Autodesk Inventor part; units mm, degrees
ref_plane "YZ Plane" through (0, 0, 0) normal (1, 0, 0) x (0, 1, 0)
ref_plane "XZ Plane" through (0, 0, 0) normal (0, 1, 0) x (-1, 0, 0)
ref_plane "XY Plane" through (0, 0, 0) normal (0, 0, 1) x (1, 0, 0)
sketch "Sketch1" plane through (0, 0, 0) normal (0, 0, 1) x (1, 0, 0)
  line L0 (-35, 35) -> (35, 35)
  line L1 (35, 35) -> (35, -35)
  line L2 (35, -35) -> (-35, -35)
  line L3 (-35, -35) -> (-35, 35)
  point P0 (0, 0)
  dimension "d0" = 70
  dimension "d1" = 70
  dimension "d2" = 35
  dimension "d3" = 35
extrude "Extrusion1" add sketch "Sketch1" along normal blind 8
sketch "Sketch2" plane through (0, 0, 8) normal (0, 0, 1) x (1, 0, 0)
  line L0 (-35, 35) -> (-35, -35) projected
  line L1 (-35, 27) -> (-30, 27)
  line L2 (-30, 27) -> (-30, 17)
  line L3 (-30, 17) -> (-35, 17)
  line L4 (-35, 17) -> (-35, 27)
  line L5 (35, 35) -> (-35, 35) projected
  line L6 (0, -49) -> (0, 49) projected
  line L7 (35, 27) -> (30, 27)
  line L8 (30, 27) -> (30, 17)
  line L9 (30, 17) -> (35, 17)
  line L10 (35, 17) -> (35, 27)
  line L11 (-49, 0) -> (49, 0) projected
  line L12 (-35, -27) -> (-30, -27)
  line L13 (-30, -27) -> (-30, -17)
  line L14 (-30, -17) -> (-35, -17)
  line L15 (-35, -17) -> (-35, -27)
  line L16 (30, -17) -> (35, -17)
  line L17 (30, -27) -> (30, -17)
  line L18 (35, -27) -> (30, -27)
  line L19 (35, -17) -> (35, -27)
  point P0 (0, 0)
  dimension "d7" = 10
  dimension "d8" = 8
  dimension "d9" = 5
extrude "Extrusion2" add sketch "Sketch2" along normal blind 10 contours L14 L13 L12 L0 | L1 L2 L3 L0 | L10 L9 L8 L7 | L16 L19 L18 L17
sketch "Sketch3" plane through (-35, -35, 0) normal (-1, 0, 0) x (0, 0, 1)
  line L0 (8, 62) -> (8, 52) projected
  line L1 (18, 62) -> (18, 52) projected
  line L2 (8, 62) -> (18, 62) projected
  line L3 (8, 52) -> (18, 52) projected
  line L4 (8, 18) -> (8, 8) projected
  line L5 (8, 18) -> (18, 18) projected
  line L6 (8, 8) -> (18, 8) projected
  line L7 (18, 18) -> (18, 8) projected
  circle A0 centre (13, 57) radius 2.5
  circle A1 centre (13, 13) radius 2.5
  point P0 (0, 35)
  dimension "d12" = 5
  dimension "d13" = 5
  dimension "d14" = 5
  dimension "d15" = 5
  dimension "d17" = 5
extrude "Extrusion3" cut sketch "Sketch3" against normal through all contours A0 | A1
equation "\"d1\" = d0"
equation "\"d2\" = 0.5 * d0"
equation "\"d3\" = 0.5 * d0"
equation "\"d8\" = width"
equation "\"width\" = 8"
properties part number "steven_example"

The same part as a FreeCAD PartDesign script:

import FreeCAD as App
import Part
import Sketcher


def add_polygon(sketch, points):
    """Adds a closed chain of lines whose ends are joined by coincident constraints."""
    first, n = sketch.GeometryCount, len(points)
    for a, b in zip(points, points[1:] + points[:1]):
        sketch.addGeometry(Part.LineSegment(App.Vector(*a, 0), App.Vector(*b, 0)), False)
    for i in range(n):
        sketch.addConstraint(Sketcher.Constraint("Coincident", first + i, 2, first + (i + 1) % n, 1))

doc = App.newDocument("Part")
params = doc.addObject("Spreadsheet::Sheet", "Params")
for row, (alias, value) in enumerate([
    ("sketch1_width", "70 mm"),
    ("pad1_length", "8 mm"),
    ("sketch2_width", "5 mm"),
    ("sketch2_height", "10 mm"),
    ("pad2_length", "10 mm"),
    ("sketch3_diameter", "5 mm"),
], start=1):
    params.set(f"A{row}", alias)
    params.set(f"B{row}", "=" + value)
    params.setAlias(f"B{row}", alias)

body = doc.addObject("PartDesign::Body", "Body")

# Sketch on XY plane
sketch1 = doc.addObject("Sketcher::SketchObject", "Sketch")
body.addObject(sketch1)
sketch1.AttachmentSupport = (doc.XY_Plane, [""])
sketch1.MapMode = "FlatFace"
add_polygon(sketch1, [(35, 35), (-35, 35), (-35, -35), (35, -35)])  # lines 0-3
sketch1.addConstraint(Sketcher.Constraint("Horizontal", 0))
sketch1.addConstraint(Sketcher.Constraint("Vertical", 1))
sketch1.addConstraint(Sketcher.Constraint("Horizontal", 2))
sketch1.addConstraint(Sketcher.Constraint("Vertical", 3))
sketch1.addConstraint(Sketcher.Constraint("Symmetric", 0, 2, 2, 2, -1, 1))
sketch1.addConstraint(Sketcher.Constraint("Equal", 2, 1))
sketch1.addConstraint(Sketcher.Constraint("DistanceX", 0, 2, 0, 1, 70.0))
sketch1.setExpression("Constraints[10]", "Params.sketch1_width")
pad1 = doc.addObject("PartDesign::Pad", "Pad")
body.addObject(pad1)
pad1.Profile = sketch1
pad1.setExpression("Length", "Params.pad1_length")

# Sketch on XY plane
sketch2 = doc.addObject("Sketcher::SketchObject", "Sketch001")
body.addObject(sketch2)
sketch2.AttachmentSupport = (doc.XY_Plane, [""])
sketch2.MapMode = "FlatFace"
sketch2.AttachmentOffset = App.Placement(App.Vector(0, 0, 8), App.Rotation())
add_polygon(sketch2, [(-30, -17), (-35, -17), (-35, -27), (-30, -27)])  # lines 0-3
add_polygon(sketch2, [(-30, 27), (-35, 27), (-35, 17), (-30, 17)])  # lines 4-7
add_polygon(sketch2, [(35, 17), (35, 27), (30, 27), (30, 17)])  # lines 8-11
add_polygon(sketch2, [(35, -17), (30, -17), (30, -27), (35, -27)])  # lines 12-15
sketch2.addConstraint(Sketcher.Constraint("Horizontal", 0))
sketch2.addConstraint(Sketcher.Constraint("Vertical", 1))
sketch2.addConstraint(Sketcher.Constraint("Horizontal", 2))
sketch2.addConstraint(Sketcher.Constraint("Vertical", 3))
sketch2.addConstraint(Sketcher.Constraint("Horizontal", 4))
sketch2.addConstraint(Sketcher.Constraint("Vertical", 5))
sketch2.addConstraint(Sketcher.Constraint("Horizontal", 6))
sketch2.addConstraint(Sketcher.Constraint("Vertical", 7))
sketch2.addConstraint(Sketcher.Constraint("Vertical", 8))
sketch2.addConstraint(Sketcher.Constraint("Horizontal", 9))
sketch2.addConstraint(Sketcher.Constraint("Vertical", 10))
sketch2.addConstraint(Sketcher.Constraint("Horizontal", 11))
sketch2.addConstraint(Sketcher.Constraint("Horizontal", 12))
sketch2.addConstraint(Sketcher.Constraint("Vertical", 13))
sketch2.addConstraint(Sketcher.Constraint("Horizontal", 14))
sketch2.addConstraint(Sketcher.Constraint("Vertical", 15))
sketch2.addConstraint(Sketcher.Constraint("Symmetric", 1, 2, 8, 2, -1, 1))
sketch2.addConstraint(Sketcher.Constraint("Symmetric", 3, 2, 10, 2, -1, 1))
sketch2.addConstraint(Sketcher.Constraint("Symmetric", 6, 2, 12, 2, -1, 1))
sketch2.addConstraint(Sketcher.Constraint("Symmetric", 4, 2, 14, 2, -1, 1))
sketch2.addConstraint(Sketcher.Constraint("Symmetric", 4, 2, 8, 2, -2))
sketch2.addConstraint(Sketcher.Constraint("Symmetric", 6, 2, 10, 2, -2))
sketch2.addConstraint(Sketcher.Constraint("DistanceX", 0, 2, 0, 1, 5.0))
sketch2.addConstraint(Sketcher.Constraint("DistanceY", 1, 2, 1, 1, 10.0))
sketch2.addConstraint(Sketcher.Constraint("DistanceX", 0, 2, -1, 1, 35.0))
sketch2.addConstraint(Sketcher.Constraint("DistanceY", 0, 2, -1, 1, 17.0))
sketch2.setExpression("Constraints[38]", "Params.sketch2_width")
sketch2.setExpression("Constraints[39]", "Params.sketch2_height")
pad2 = doc.addObject("PartDesign::Pad", "Pad001")
body.addObject(pad2)
pad2.Profile = sketch2
pad2.setExpression("Length", "Params.pad2_length")

# Sketch on YZ plane
sketch3 = doc.addObject("Sketcher::SketchObject", "Sketch002")
body.addObject(sketch3)
sketch3.AttachmentSupport = (doc.YZ_Plane, [""])
sketch3.MapMode = "FlatFace"
sketch3.AttachmentOffset = App.Placement(App.Vector(0, 0, -35), App.Rotation())
sketch3.addGeometry(Part.Circle(App.Vector(22, 13, 0), App.Vector(0, 0, 1), 2.5), False)
sketch3.addGeometry(Part.Circle(App.Vector(-22, 13, 0), App.Vector(0, 0, 1), 2.5), False)
sketch3.addConstraint(Sketcher.Constraint("Equal", 0, 1))
sketch3.addConstraint(Sketcher.Constraint("Symmetric", 0, 3, 1, 3, -2))
sketch3.addConstraint(Sketcher.Constraint("Diameter", 0, 5.0))
sketch3.addConstraint(Sketcher.Constraint("DistanceX", -1, 1, 0, 3, 22.0))
sketch3.addConstraint(Sketcher.Constraint("DistanceY", -1, 1, 0, 3, 13.0))
sketch3.setExpression("Constraints[2]", "Params.sketch3_diameter")
pocket1 = doc.addObject("PartDesign::Pocket", "Pocket")
body.addObject(pocket1)
pocket1.Profile = sketch3
pocket1.Type = "ThroughAll"
pocket1.Reversed = True

doc.recompute()
